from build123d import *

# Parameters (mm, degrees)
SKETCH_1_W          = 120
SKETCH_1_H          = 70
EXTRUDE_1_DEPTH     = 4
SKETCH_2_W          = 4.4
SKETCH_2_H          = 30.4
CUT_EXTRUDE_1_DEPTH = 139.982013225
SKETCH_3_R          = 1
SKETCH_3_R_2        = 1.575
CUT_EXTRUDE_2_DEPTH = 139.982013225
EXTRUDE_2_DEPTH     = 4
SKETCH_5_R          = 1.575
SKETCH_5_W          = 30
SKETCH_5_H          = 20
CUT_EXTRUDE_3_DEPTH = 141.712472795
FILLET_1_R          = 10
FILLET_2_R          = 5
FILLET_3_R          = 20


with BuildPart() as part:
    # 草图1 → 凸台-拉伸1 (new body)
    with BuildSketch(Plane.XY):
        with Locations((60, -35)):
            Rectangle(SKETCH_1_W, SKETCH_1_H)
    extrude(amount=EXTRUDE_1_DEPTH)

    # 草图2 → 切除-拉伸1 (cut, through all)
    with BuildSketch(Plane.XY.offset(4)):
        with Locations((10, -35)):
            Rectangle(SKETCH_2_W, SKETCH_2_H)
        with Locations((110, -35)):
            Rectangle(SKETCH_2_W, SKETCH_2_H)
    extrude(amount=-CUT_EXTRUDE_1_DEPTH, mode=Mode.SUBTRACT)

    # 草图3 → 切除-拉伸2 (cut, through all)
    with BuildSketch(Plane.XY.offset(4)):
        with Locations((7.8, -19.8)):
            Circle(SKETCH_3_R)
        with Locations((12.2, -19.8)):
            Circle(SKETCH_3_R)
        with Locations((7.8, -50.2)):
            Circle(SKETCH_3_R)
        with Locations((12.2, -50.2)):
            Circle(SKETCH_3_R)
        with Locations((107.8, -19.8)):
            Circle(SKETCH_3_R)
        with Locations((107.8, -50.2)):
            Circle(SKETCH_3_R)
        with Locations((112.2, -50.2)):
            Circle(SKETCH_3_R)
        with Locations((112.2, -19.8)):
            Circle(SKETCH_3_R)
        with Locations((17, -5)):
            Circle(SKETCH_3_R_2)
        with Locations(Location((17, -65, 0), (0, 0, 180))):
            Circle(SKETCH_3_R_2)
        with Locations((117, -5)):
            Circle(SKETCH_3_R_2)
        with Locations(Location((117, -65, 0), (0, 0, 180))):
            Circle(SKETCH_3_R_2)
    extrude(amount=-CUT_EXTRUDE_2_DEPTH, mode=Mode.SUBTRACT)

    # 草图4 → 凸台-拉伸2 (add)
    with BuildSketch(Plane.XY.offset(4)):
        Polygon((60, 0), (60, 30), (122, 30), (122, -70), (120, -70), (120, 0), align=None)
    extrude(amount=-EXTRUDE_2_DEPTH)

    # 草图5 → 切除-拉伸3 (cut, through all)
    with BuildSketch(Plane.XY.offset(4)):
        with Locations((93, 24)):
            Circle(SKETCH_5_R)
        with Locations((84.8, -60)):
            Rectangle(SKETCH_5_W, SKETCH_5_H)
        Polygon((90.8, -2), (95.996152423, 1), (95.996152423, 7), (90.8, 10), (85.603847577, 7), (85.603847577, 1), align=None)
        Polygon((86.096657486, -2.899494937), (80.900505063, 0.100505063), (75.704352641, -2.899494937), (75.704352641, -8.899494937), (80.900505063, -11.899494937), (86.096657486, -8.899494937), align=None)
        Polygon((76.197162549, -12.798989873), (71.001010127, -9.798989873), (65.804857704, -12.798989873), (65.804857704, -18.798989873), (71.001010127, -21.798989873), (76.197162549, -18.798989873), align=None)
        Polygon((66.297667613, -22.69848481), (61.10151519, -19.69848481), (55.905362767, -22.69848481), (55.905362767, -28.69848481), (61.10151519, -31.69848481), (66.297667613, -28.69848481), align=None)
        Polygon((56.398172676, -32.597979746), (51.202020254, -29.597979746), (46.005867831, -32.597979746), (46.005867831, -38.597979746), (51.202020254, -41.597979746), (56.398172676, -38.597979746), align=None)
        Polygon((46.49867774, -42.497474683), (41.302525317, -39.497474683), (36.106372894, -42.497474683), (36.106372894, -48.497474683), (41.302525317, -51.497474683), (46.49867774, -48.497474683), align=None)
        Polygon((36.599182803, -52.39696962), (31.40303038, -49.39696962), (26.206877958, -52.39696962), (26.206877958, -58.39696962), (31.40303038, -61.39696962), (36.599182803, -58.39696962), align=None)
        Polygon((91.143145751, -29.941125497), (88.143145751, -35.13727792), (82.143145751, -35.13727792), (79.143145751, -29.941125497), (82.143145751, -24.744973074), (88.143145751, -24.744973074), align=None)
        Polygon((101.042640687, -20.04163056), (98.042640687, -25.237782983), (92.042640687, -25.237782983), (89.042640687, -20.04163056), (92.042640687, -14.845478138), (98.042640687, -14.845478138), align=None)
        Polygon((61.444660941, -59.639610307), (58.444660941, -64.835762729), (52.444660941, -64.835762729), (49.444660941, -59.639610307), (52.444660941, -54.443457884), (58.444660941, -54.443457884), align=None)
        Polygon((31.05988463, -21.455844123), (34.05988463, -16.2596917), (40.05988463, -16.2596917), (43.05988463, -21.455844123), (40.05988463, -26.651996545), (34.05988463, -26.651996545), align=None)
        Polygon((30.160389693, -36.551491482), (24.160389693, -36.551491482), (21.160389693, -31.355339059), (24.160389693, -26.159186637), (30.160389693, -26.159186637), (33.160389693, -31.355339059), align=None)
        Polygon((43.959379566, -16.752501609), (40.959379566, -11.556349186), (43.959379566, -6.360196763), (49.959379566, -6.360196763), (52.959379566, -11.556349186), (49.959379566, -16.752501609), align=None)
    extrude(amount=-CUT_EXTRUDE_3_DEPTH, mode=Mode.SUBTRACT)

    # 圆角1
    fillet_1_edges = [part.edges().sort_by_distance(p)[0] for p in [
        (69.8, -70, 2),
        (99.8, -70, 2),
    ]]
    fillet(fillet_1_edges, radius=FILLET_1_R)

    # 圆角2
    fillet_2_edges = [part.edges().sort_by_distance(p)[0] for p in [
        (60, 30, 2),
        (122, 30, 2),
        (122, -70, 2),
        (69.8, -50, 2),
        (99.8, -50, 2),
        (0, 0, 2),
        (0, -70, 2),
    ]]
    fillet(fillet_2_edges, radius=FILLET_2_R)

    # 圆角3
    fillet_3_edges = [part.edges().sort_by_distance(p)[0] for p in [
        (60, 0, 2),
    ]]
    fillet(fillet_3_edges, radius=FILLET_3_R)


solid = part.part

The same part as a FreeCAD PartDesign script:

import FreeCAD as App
import Part
import Sketcher

V = App.Vector
Q = App.Units.Quantity


def edges_at(feature, points):
    """Names of the edges that pass closest to the given points."""
    edges = feature.Shape.Edges
    near = lambda p: min(range(len(edges)), key=lambda i: edges[i].distToShape(Part.Vertex(*p))[0])
    return sorted({f"Edge{near(p) + 1}" for p in points})


def add_polygon(sketch, points):
    """Adds a closed chain of lines whose ends are joined by coincident constraints."""
    first, n = sketch.GeometryCount, len(points)
    for a, b in zip(points, points[1:] + points[:1]):
        sketch.addGeometry(Part.LineSegment(App.Vector(*a, 0), App.Vector(*b, 0)), False)
    for i in range(n):
        sketch.addConstraint(Sketcher.Constraint("Coincident", first + i, 2, first + (i + 1) % n, 1))

doc = App.newDocument("Part")
body = doc.addObject("PartDesign::Body", "Body")

# Sketch on XY plane
sketch1 = body.newObject("Sketcher::SketchObject", "Sketch")
sketch1.AttachmentSupport = (doc.getObject("XY_Plane"), [""])
sketch1.MapMode = "FlatFace"
add_polygon(sketch1, [(0, 0), (0, -70), (120, -70), (120, 0)])  # lines 0-3
sketch1.addConstraint([
    Sketcher.Constraint("Vertical", 0),
    Sketcher.Constraint("Horizontal", 1),
    Sketcher.Constraint("Vertical", 2),
    Sketcher.Constraint("Horizontal", 3),
    Sketcher.Constraint("Coincident", 3, 2, -1, 1),
    Sketcher.Constraint("DistanceX", 1, 1, 1, 2, 120.0),
    Sketcher.Constraint("DistanceY", 0, 2, 0, 1, 70.0),
])
pad1 = body.newObject("PartDesign::Pad", "Pad")
pad1.Profile = sketch1
pad1.Length = 4

# Sketch on XY plane
sketch2 = body.newObject("Sketcher::SketchObject", "Sketch001")
sketch2.AttachmentSupport = (doc.getObject("XY_Plane"), [""])
sketch2.MapMode = "FlatFace"
sketch2.AttachmentOffset = App.Placement(V(0, 0, 4), App.Rotation())
add_polygon(sketch2, [(7.8, -19.8), (7.8, -50.2), (12.2, -50.2), (12.2, -19.8)])  # lines 0-3
add_polygon(sketch2, [(107.8, -19.8), (107.8, -50.2), (112.2, -50.2), (112.2, -19.8)])  # lines 4-7
sketch2.addConstraint([
    Sketcher.Constraint("Vertical", 0),
    Sketcher.Constraint("Horizontal", 1),
    Sketcher.Constraint("Vertical", 2),
    Sketcher.Constraint("Horizontal", 3),
    Sketcher.Constraint("Vertical", 4),
    Sketcher.Constraint("Horizontal", 5),
    Sketcher.Constraint("Vertical", 6),
    Sketcher.Constraint("Horizontal", 7),
    Sketcher.Constraint("Horizontal", 1, 2, 4, 2),
    Sketcher.Constraint("Horizontal", 3, 2, 6, 2),
    Sketcher.Constraint("Equal", 3, 5),
    Sketcher.Constraint("DistanceX", 1, 1, 1, 2, 4.4),
    Sketcher.Constraint("DistanceY", 0, 2, 0, 1, 30.4),
    Sketcher.Constraint("DistanceX", 0, 2, 4, 2, 100.0),
    Sketcher.Constraint("DistanceX", -1, 1, 0, 2, 7.8),
    Sketcher.Constraint("DistanceY", 0, 2, -1, 1, 50.2),
])
pocket1 = body.newObject("PartDesign::Pocket", "Pocket")
pocket1.Profile = sketch2
pocket1.Type = "ThroughAll"

# Sketch on XY plane
sketch3 = body.newObject("Sketcher::SketchObject", "Sketch002")
sketch3.AttachmentSupport = (doc.getObject("XY_Plane"), [""])
sketch3.MapMode = "FlatFace"
sketch3.AttachmentOffset = App.Placement(V(0, 0, 4), App.Rotation())
sketch3.addGeometry([
    Part.Circle(V(7.8, -19.8, 0), V(0, 0, 1), 1),  # 0
    Part.Circle(V(12.2, -19.8, 0), V(0, 0, 1), 1),  # 1
    Part.Circle(V(7.8, -50.2, 0), V(0, 0, 1), 1),  # 2
    Part.Circle(V(12.2, -50.2, 0), V(0, 0, 1), 1),  # 3
    Part.Circle(V(107.8, -19.8, 0), V(0, 0, 1), 1),  # 4
    Part.Circle(V(107.8, -50.2, 0), V(0, 0, 1), 1),  # 5
    Part.Circle(V(112.2, -50.2, 0), V(0, 0, 1), 1),  # 6
    Part.Circle(V(112.2, -19.8, 0), V(0, 0, 1), 1),  # 7
    Part.Circle(V(17, -5, 0), V(0, 0, 1), 1.575),  # 8
    Part.Circle(V(17, -65, 0), V(0, 0, 1), 1.575),  # 9
    Part.Circle(V(117, -5, 0), V(0, 0, 1), 1.575),  # 10
    Part.Circle(V(117, -65, 0), V(0, 0, 1), 1.575),  # 11
], False)
sketch3.addConstraint([
    Sketcher.Constraint("Equal", 0, 1),
    Sketcher.Constraint("Equal", 1, 2),
    Sketcher.Constraint("Equal", 2, 3),
    Sketcher.Constraint("Equal", 3, 4),
    Sketcher.Constraint("Equal", 4, 5),
    Sketcher.Constraint("Equal", 5, 6),
    Sketcher.Constraint("Equal", 6, 7),
    Sketcher.Constraint("Equal", 8, 9),
    Sketcher.Constraint("Equal", 9, 10),
    Sketcher.Constraint("Equal", 10, 11),
    Sketcher.Constraint("Horizontal", 0, 3, 1, 3),
    Sketcher.Constraint("Horizontal", 2, 3, 3, 3),
    Sketcher.Constraint("Horizontal", 1, 3, 4, 3),
    Sketcher.Constraint("Horizontal", 3, 3, 5, 3),
    Sketcher.Constraint("Horizontal", 5, 3, 6, 3),
    Sketcher.Constraint("Horizontal", 4, 3, 7, 3),
    Sketcher.Constraint("Horizontal", 8, 3, 10, 3),
    Sketcher.Constraint("Horizontal", 9, 3, 11, 3),
    Sketcher.Constraint("Vertical", 0, 3, 2, 3),
    Sketcher.Constraint("Vertical", 1, 3, 3, 3),
    Sketcher.Constraint("Vertical", 4, 3, 5, 3),
    Sketcher.Constraint("Vertical", 6, 3, 7, 3),
    Sketcher.Constraint("Vertical", 8, 3, 9, 3),
    Sketcher.Constraint("Vertical", 10, 3, 11, 3),
    Sketcher.Constraint("Diameter", 0, 2.0),
    Sketcher.Constraint("Diameter", 8, 3.15),
    Sketcher.Constraint("DistanceX", -1, 1, 8, 3, 17.0),
    Sketcher.Constraint("DistanceY", 8, 3, -1, 1, 5.0),
    Sketcher.Constraint("DistanceY", 9, 3, -1, 1, 65.0),
    Sketcher.Constraint("DistanceX", -1, 1, 10, 3, 117.0),
    Sketcher.Constraint("DistanceX", 0, 3, 4, 3, 100.0),
    Sketcher.Constraint("DistanceX", 3, 3, 6, 3, 100.0),
    Sketcher.Constraint("DistanceX", -1, 1, 0, 3, 7.8),
    Sketcher.Constraint("DistanceY", 0, 3, -1, 1, 19.8),
    Sketcher.Constraint("DistanceX", -1, 1, 1, 3, 12.2),
    Sketcher.Constraint("DistanceY", 2, 3, -1, 1, 50.2),
])
pocket2 = body.newObject("PartDesign::Pocket", "Pocket001")
pocket2.Profile = sketch3
pocket2.Type = "ThroughAll"

# Sketch on XY plane
sketch4 = body.newObject("Sketcher::SketchObject", "Sketch003")
sketch4.AttachmentSupport = (doc.getObject("XY_Plane"), [""])
sketch4.MapMode = "FlatFace"
sketch4.AttachmentOffset = App.Placement(V(0, 0, 4), App.Rotation())
add_polygon(sketch4, [(60, 30), (60, 0), (120, 0), (120, -70), (122, -70), (122, 30)])  # lines 0-5
sketch4.addConstraint([
    Sketcher.Constraint("Vertical", 0),
    Sketcher.Constraint("Horizontal", 1),
    Sketcher.Constraint("Vertical", 2),
    Sketcher.Constraint("Horizontal", 3),
    Sketcher.Constraint("Vertical", 4),
    Sketcher.Constraint("Horizontal", 5),
    Sketcher.Constraint("PointOnObject", 0, 2, -1),
    Sketcher.Constraint("DistanceX", 1, 1, 1, 2, 60.0),
    Sketcher.Constraint("DistanceX", 3, 1, 3, 2, 2.0),
    Sketcher.Constraint("DistanceY", 0, 2, 0, 1, 30.0),
    Sketcher.Constraint("DistanceY", 2, 2, 2, 1, 70.0),
    Sketcher.Constraint("DistanceX", -1, 1, 0, 2, 60.0),
])
pad2 = body.newObject("PartDesign::Pad", "Pad001")
pad2.Profile = sketch4
pad2.Length = 4
pad2.Reversed = True

# Sketch on XY plane
sketch5 = body.newObject("Sketcher::SketchObject", "Sketch004")
sketch5.AttachmentSupport = (doc.getObject("XY_Plane"), [""])
sketch5.MapMode = "FlatFace"
sketch5.AttachmentOffset = App.Placement(V(0, 0, 4), App.Rotation())
sketch5.addGeometry(Part.Circle(V(93, 24, 0), V(0, 0, 1), 1.575), False)  # 0
add_polygon(sketch5, [(69.8, -50), (69.8, -70), (99.8, -70), (99.8, -50)])  # lines 1-4
add_polygon(sketch5, [(90.8, -2), (95.996152, 1), (95.996152, 7), (90.8, 10), (85.603848, 7), (85.603848, 1)])  # lines 5-10
add_polygon(sketch5, [(86.096657, -2.899495), (80.900505, 0.100505), (75.704353, -2.899495), (75.704353, -8.899495), (80.900505, -11.899495), (86.096657, -8.899495)])  # lines 11-16
add_polygon(sketch5, [(76.197163, -12.79899), (71.00101, -9.79899), (65.804858, -12.79899), (65.804858, -18.79899), (71.00101, -21.79899), (76.197163, -18.79899)])  # lines 17-22
add_polygon(sketch5, [(66.297668, -22.698485), (61.101515, -19.698485), (55.905363, -22.698485), (55.905363, -28.698485), (61.101515, -31.698485), (66.297668, -28.698485)])  # lines 23-28
add_polygon(sketch5, [(56.398173, -32.59798), (51.20202, -29.59798), (46.005868, -32.59798), (46.005868, -38.59798), (51.20202, -41.59798), (56.398173, -38.59798)])  # lines 29-34
add_polygon(sketch5, [(46.498678, -42.497475), (41.302525, -39.497475), (36.106373, -42.497475), (36.106373, -48.497475), (41.302525, -51.497475), (46.498678, -48.497475)])  # lines 35-40
add_polygon(sketch5, [(36.599183, -52.39697), (31.40303, -49.39697), (26.206878, -52.39697), (26.206878, -58.39697), (31.40303, -61.39697), (36.599183, -58.39697)])  # lines 41-46
add_polygon(sketch5, [(88.143146, -35.137278), (91.143146, -29.941125), (88.143146, -24.744973), (82.143146, -24.744973), (79.143146, -29.941125), (82.143146, -35.137278)])  # lines 47-52
add_polygon(sketch5, [(98.042641, -25.237783), (101.042641, -20.041631), (98.042641, -14.845478), (92.042641, -14.845478), (89.042641, -20.041631), (92.042641, -25.237783)])  # lines 53-58
add_polygon(sketch5, [(58.444661, -64.835763), (61.444661, -59.63961), (58.444661, -54.443458), (52.444661, -54.443458), (49.444661, -59.63961), (52.444661, -64.835763)])  # lines 59-64
add_polygon(sketch5, [(34.059885, -16.259692), (31.059885, -21.455844), (34.059885, -26.651997), (40.059885, -26.651997), (43.059885, -21.455844), (40.059885, -16.259692)])  # lines 65-70
add_polygon(sketch5, [(24.16039, -36.551491), (30.16039, -36.551491), (33.16039, -31.355339), (30.16039, -26.159187), (24.16039, -26.159187), (21.16039, -31.355339)])  # lines 71-76
add_polygon(sketch5, [(40.95938, -11.556349), (43.95938, -16.752502), (49.95938, -16.752502), (52.95938, -11.556349), (49.95938, -6.360197), (43.95938, -6.360197)])  # lines 77-82
sketch5.addConstraint([
    Sketcher.Constraint("Vertical", 1),
    Sketcher.Constraint("Horizontal", 2),
    Sketcher.Constraint("Vertical", 3),
    Sketcher.Constraint("Horizontal", 4),
    Sketcher.Constraint("Vertical", 6),
    Sketcher.Constraint("Vertical", 9),
    Sketcher.Constraint("Vertical", 13),
    Sketcher.Constraint("Vertical", 16),
    Sketcher.Constraint("Vertical", 19),
    Sketcher.Constraint("Vertical", 22),
    Sketcher.Constraint("Vertical", 25),
    Sketcher.Constraint("Vertical", 28),
    Sketcher.Constraint("Vertical", 31),
    Sketcher.Constraint("Vertical", 34),
    Sketcher.Constraint("Vertical", 37),
    Sketcher.Constraint("Vertical", 40),
    Sketcher.Constraint("Vertical", 43),
    Sketcher.Constraint("Vertical", 46),
    Sketcher.Constraint("Horizontal", 49),
    Sketcher.Constraint("Horizontal", 52),
    Sketcher.Constraint("Horizontal", 55),
    Sketcher.Constraint("Horizontal", 58),
    Sketcher.Constraint("Horizontal", 61),
    Sketcher.Constraint("Horizontal", 64),
    Sketcher.Constraint("Horizontal", 67),
    Sketcher.Constraint("Horizontal", 70),
    Sketcher.Constraint("Horizontal", 71),
    Sketcher.Constraint("Horizontal", 74),
    Sketcher.Constraint("Horizontal", 78),
    Sketcher.Constraint("Horizontal", 81),
    Sketcher.Constraint("Parallel", 5, 8),
    Sketcher.Constraint("Parallel", 7, 10),
    Sketcher.Constraint("Parallel", 10, 11),
    Sketcher.Constraint("Parallel", 8, 12),
    Sketcher.Constraint("Parallel", 11, 14),
    Sketcher.Constraint("Parallel", 12, 15),
    Sketcher.Constraint("Parallel", 14, 17),
    Sketcher.Constraint("Parallel", 15, 18),
    Sketcher.Constraint("Parallel", 17, 20),
    Sketcher.Constraint("Parallel", 18, 21),
    Sketcher.Constraint("Parallel", 20, 23),
    Sketcher.Constraint("Parallel", 21, 24),
    Sketcher.Constraint("Parallel", 23, 26),
    Sketcher.Constraint("Parallel", 24, 27),
    Sketcher.Constraint("Parallel", 26, 29),
    Sketcher.Constraint("Parallel", 27, 30),
    Sketcher.Constraint("Parallel", 29, 32),
    Sketcher.Constraint("Parallel", 30, 33),
    Sketcher.Constraint("Parallel", 32, 35),
    Sketcher.Constraint("Parallel", 33, 36),
    Sketcher.Constraint("Parallel", 35, 38),
    Sketcher.Constraint("Parallel", 36, 39),
    Sketcher.Constraint("Parallel", 38, 41),
    Sketcher.Constraint("Parallel", 39, 42),
    Sketcher.Constraint("Parallel", 41, 44),
    Sketcher.Constraint("Parallel", 42, 45),
    Sketcher.Constraint("Perpendicular", 44, 47),
    Sketcher.Constraint("Perpendicular", 45, 48),
    Sketcher.Constraint("Parallel", 47, 50),
    Sketcher.Constraint("Parallel", 48, 51),
    Sketcher.Constraint("Parallel", 50, 53),
    Sketcher.Constraint("Parallel", 51, 54),
    Sketcher.Constraint("Parallel", 53, 56),
    Sketcher.Constraint("Parallel", 54, 57),
    Sketcher.Constraint("Parallel", 56, 59),
    Sketcher.Constraint("Parallel", 57, 60),
    Sketcher.Constraint("Parallel", 59, 62),
    Sketcher.Constraint("Parallel", 60, 63),
    Sketcher.Constraint("Parallel", 62, 65),
    Sketcher.Constraint("Parallel", 63, 66),
    Sketcher.Constraint("Parallel", 65, 68),
    Sketcher.Constraint("Parallel", 66, 69),
    Sketcher.Constraint("Parallel", 68, 72),
    Sketcher.Constraint("Parallel", 69, 73),
    Sketcher.Constraint("Parallel", 72, 75),
    Sketcher.Constraint("Parallel", 73, 76),
    Sketcher.Constraint("Parallel", 76, 77),
    Sketcher.Constraint("Parallel", 75, 79),
    Sketcher.Constraint("Parallel", 77, 80),
    Sketcher.Constraint("Parallel", 79, 82),
    Sketcher.Constraint("Horizontal", 6, 2, 8, 2),
    Sketcher.Constraint("Horizontal", 5, 2, 9, 2),
    Sketcher.Constraint("Horizontal", 13, 2, 15, 2),
    Sketcher.Constraint("Horizontal", 12, 2, 16, 2),
    Sketcher.Constraint("Horizontal", 19, 2, 21, 2),
    Sketcher.Constraint("Horizontal", 18, 2, 22, 2),
    Sketcher.Constraint("Horizontal", 25, 2, 27, 2),
    Sketcher.Constraint("Horizontal", 24, 2, 28, 2),
    Sketcher.Constraint("Horizontal", 31, 2, 33, 2),
    Sketcher.Constraint("Horizontal", 30, 2, 34, 2),
    Sketcher.Constraint("Horizontal", 37, 2, 39, 2),
    Sketcher.Constraint("Horizontal", 36, 2, 40, 2),
    Sketcher.Constraint("Horizontal", 43, 2, 45, 2),
    Sketcher.Constraint("Horizontal", 42, 2, 46, 2),
    Sketcher.Constraint("Horizontal", 47, 2, 50, 2),
    Sketcher.Constraint("Horizontal", 53, 2, 56, 2),
    Sketcher.Constraint("Horizontal", 59, 2, 62, 2),
    Sketcher.Constraint("Horizontal", 65, 2, 68, 2),
    Sketcher.Constraint("Horizontal", 72, 2, 75, 2),
    Sketcher.Constraint("Horizontal", 79, 2, 82, 2),
    Sketcher.Constraint("Vertical", 7, 2, 10, 2),
    Sketcher.Constraint("Vertical", 49, 2, 51, 2),
    Sketcher.Constraint("Vertical", 55, 2, 57, 2),
    Sketcher.Constraint("Vertical", 61, 2, 63, 2),
    Sketcher.Constraint("Vertical", 67, 2, 69, 2),
    Sketcher.Constraint("Vertical", 71, 2, 73, 2),
    Sketcher.Constraint("Vertical", 78, 2, 80, 2),
    Sketcher.Constraint("Equal", 52, 55),
    Sketcher.Constraint("Equal", 58, 61),
    Sketcher.Constraint("Equal", 64, 67),
    Sketcher.Constraint("Equal", 70, 71),
    Sketcher.Constraint("Equal", 74, 78),
    Sketcher.Constraint("Equal", 81, 6),
    Sketcher.Constraint("Equal", 9, 13),
    Sketcher.Constraint("Equal", 16, 19),
    Sketcher.Constraint("Equal", 22, 25),
    Sketcher.Constraint("Equal", 28, 31),
    Sketcher.Constraint("Equal", 34, 37),
    Sketcher.Constraint("Equal", 40, 43),
    Sketcher.Constraint("Equal", 10, 11),
    Sketcher.Constraint("Equal", 15, 17),
    Sketcher.Constraint("Equal", 21, 23),
    Sketcher.Constraint("Equal", 27, 29),
    Sketcher.Constraint("Equal", 33, 35),
    Sketcher.Constraint("Equal", 39, 41),
    Sketcher.Constraint("Equal", 45, 47),
    Sketcher.Constraint("Equal", 51, 53),
    Sketcher.Constraint("Equal", 57, 59),
    Sketcher.Constraint("Equal", 63, 65),
    Sketcher.Constraint("Equal", 69, 72),
    Sketcher.Constraint("Equal", 76, 77),
    Sketcher.Constraint("Diameter", 0, 3.15),
    Sketcher.Constraint("DistanceX", 2, 1, 2, 2, 30.0),
    Sketcher.Constraint("DistanceX", 49, 2, 49, 1, 6.0),
    Sketcher.Constraint("DistanceY", 1, 2, 1, 1, 20.0),
    Sketcher.Constraint("Angle", 5, Q("30 deg")),
    Sketcher.Constraint("Distance", 5, 6.0),
    Sketcher.Constraint("DistanceX", -1, 1, 0, 3, 93.0),
    Sketcher.Constraint("DistanceY", -1, 1, 0, 3, 24.0),
    Sketcher.Constraint("DistanceY", 1, 2, -1, 1, 70.0),
    Sketcher.Constraint("DistanceY", -1, 1, 5, 2, 1.0),
    Sketcher.Constraint("DistanceX", -1, 1, 1, 2, 69.8),
    Sketcher.Constraint("DistanceX", -1, 1, 7, 2, 90.8),
    Sketcher.Constraint("DistanceY", 77, 2, -1, 1, 16.752502),
    Sketcher.Constraint("DistanceX", -1, 1, 17, 2, 71.00101),
    Sketcher.Constraint("DistanceY", 17, 2, -1, 1, 9.79899),
    Sketcher.Constraint("DistanceX", -1, 1, 29, 2, 51.20202),
    Sketcher.Constraint("DistanceY", 29, 2, -1, 1, 29.59798),
    Sketcher.Constraint("DistanceX", -1, 1, 41, 2, 31.40303),
    Sketcher.Constraint("DistanceY", 41, 2, -1, 1, 49.39697),
    Sketcher.Constraint("DistanceX", -1, 1, 53, 2, 101.042641),
    Sketcher.Constraint("DistanceY", 53, 2, -1, 1, 20.041631),
    Sketcher.Constraint("DistanceX", -1, 1, 59, 2, 61.444661),
    Sketcher.Constraint("DistanceY", 59, 2, -1, 1, 59.63961),
    Sketcher.Constraint("DistanceY", 69, 2, -1, 1, 16.259692),
    Sketcher.Constraint("DistanceX", -1, 1, 71, 2, 30.16039),
    Sketcher.Constraint("DistanceY", 71, 2, -1, 1, 36.551491),
    Sketcher.Constraint("DistanceX", -1, 1, 77, 2, 43.95938),
    Sketcher.Constraint("DistanceX", -1, 1, 11, 2, 80.900505),
    Sketcher.Constraint("DistanceY", -1, 1, 11, 2, 0.100505),
    Sketcher.Constraint("DistanceX", -1, 1, 23, 2, 61.101515),
    Sketcher.Constraint("DistanceY", 23, 2, -1, 1, 19.698485),
    Sketcher.Constraint("DistanceX", -1, 1, 35, 2, 41.302525),
    Sketcher.Constraint("DistanceY", 35, 2, -1, 1, 39.497475),
    Sketcher.Constraint("DistanceX", -1, 1, 47, 2, 91.143146),
    Sketcher.Constraint("DistanceY", 47, 2, -1, 1, 29.941125),
    Sketcher.Constraint("DistanceX", -1, 1, 65, 2, 31.059885),
])
pocket3 = body.newObject("PartDesign::Pocket", "Pocket002")
pocket3.Profile = sketch5
pocket3.Type = "ThroughAll"
doc.recompute()

fillet = body.newObject("PartDesign::Fillet", "Fillet")
fillet.Base = (pocket3, edges_at(pocket3, [(69.8, -70, 2), (99.8, -70, 2)]))
fillet.Radius = 10
doc.recompute()

fillet2 = body.newObject("PartDesign::Fillet", "Fillet001")
fillet2.Base = (fillet, edges_at(fillet, [
    (60, 30, 2),
    (122, 30, 2),
    (122, -70, 2),
    (69.8, -50, 2),
    (99.8, -50, 2),
    (0, 0, 2),
    (0, -70, 2),
]))
fillet2.Radius = 5
doc.recompute()

fillet3 = body.newObject("PartDesign::Fillet", "Fillet002")
fillet3.Base = (fillet2, edges_at(fillet2, [(60, 0, 2)]))
fillet3.Radius = 20

doc.recompute()
